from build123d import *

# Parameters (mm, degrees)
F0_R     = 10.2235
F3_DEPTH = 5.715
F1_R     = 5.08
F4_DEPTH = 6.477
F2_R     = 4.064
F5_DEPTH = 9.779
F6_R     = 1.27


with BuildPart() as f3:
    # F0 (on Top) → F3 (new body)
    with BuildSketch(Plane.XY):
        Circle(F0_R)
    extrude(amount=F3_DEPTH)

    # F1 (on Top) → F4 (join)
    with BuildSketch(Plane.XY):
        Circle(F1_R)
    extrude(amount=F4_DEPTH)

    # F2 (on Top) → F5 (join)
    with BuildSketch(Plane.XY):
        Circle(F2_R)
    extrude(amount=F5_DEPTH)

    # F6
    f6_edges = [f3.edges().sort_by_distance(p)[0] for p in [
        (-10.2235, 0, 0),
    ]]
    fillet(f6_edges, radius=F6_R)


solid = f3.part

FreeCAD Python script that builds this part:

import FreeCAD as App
import Part
import Sketcher

V = App.Vector
Q = App.Units.Quantity


def edges_at(feature, points):
    """Names of the edges that pass closest to the given points."""
    edges = feature.Shape.Edges
    near = lambda p: min(range(len(edges)), key=lambda i: edges[i].distToShape(Part.Vertex(*p))[0])
    return sorted({f"Edge{near(p) + 1}" for p in points})

doc = App.newDocument("Part")
params = doc.addObject("Spreadsheet::Sheet", "Params")
for row, (alias, value) in enumerate([
    ("sketch1_diameter", "0.805 in"),
    ("pad1_length", "0.225 in"),
    ("sketch2_diameter", "0.4 in"),
    ("pad2_length", "0.255 in"),
    ("sketch3_diameter", "0.32 in"),
    ("pad3_length", "0.385 in"),
    ("fillet_radius", "0.05 in"),
], start=1):
    params.set(f"A{row}", alias)
    params.set(f"B{row}", "=" + value)
    params.setAlias(f"B{row}", alias)

body = doc.addObject("PartDesign::Body", "Body")

# Sketch on XY plane
sketch1 = doc.addObject("Sketcher::SketchObject", "Sketch")
body.addObject(sketch1)
sketch1.AttachmentSupport = (doc.XY_Plane, [""])
sketch1.MapMode = "FlatFace"
sketch1.addGeometry(Part.Circle(V(0, 0, 0), V(0, 0, 1), 10), False)
sketch1.addConstraint(Sketcher.Constraint("Coincident", 0, 3, -1, 1))
sketch1.addConstraint(Sketcher.Constraint("Diameter", 0, Q("0.805 in")))
sketch1.setExpression("Constraints[1]", "Params.sketch1_diameter")
pad1 = doc.addObject("PartDesign::Pad", "Pad")
body.addObject(pad1)
pad1.Profile = sketch1
pad1.setExpression("Length", "Params.pad1_length")

# Sketch on XY plane
sketch2 = doc.addObject("Sketcher::SketchObject", "Sketch001")
body.addObject(sketch2)
sketch2.AttachmentSupport = (doc.XY_Plane, [""])
sketch2.MapMode = "FlatFace"
sketch2.addGeometry(Part.Circle(V(0, 0, 0), V(0, 0, 1), 5), False)
sketch2.addConstraint(Sketcher.Constraint("Coincident", 0, 3, -1, 1))
sketch2.addConstraint(Sketcher.Constraint("Diameter", 0, Q("0.4 in")))
sketch2.setExpression("Constraints[1]", "Params.sketch2_diameter")
pad2 = doc.addObject("PartDesign::Pad", "Pad001")
body.addObject(pad2)
pad2.Profile = sketch2
pad2.setExpression("Length", "Params.pad2_length")

# Sketch on XY plane
sketch3 = doc.addObject("Sketcher::SketchObject", "Sketch002")
body.addObject(sketch3)
sketch3.AttachmentSupport = (doc.XY_Plane, [""])
sketch3.MapMode = "FlatFace"
sketch3.addGeometry(Part.Circle(V(0, 0, 0), V(0, 0, 1), 4.1), False)
sketch3.addConstraint(Sketcher.Constraint("Coincident", 0, 3, -1, 1))
sketch3.addConstraint(Sketcher.Constraint("Diameter", 0, Q("0.32 in")))
sketch3.setExpression("Constraints[1]", "Params.sketch3_diameter")
pad3 = doc.addObject("PartDesign::Pad", "Pad002")
body.addObject(pad3)
pad3.Profile = sketch3
pad3.setExpression("Length", "Params.pad3_length")
doc.recompute()

fillet = doc.addObject("PartDesign::Fillet", "Fillet")
body.addObject(fillet)
fillet.Base = (pad3, edges_at(pad3, [(-10.223, 0, 0)]))
fillet.setExpression("Radius", "Params.fillet_radius")

doc.recompute()
